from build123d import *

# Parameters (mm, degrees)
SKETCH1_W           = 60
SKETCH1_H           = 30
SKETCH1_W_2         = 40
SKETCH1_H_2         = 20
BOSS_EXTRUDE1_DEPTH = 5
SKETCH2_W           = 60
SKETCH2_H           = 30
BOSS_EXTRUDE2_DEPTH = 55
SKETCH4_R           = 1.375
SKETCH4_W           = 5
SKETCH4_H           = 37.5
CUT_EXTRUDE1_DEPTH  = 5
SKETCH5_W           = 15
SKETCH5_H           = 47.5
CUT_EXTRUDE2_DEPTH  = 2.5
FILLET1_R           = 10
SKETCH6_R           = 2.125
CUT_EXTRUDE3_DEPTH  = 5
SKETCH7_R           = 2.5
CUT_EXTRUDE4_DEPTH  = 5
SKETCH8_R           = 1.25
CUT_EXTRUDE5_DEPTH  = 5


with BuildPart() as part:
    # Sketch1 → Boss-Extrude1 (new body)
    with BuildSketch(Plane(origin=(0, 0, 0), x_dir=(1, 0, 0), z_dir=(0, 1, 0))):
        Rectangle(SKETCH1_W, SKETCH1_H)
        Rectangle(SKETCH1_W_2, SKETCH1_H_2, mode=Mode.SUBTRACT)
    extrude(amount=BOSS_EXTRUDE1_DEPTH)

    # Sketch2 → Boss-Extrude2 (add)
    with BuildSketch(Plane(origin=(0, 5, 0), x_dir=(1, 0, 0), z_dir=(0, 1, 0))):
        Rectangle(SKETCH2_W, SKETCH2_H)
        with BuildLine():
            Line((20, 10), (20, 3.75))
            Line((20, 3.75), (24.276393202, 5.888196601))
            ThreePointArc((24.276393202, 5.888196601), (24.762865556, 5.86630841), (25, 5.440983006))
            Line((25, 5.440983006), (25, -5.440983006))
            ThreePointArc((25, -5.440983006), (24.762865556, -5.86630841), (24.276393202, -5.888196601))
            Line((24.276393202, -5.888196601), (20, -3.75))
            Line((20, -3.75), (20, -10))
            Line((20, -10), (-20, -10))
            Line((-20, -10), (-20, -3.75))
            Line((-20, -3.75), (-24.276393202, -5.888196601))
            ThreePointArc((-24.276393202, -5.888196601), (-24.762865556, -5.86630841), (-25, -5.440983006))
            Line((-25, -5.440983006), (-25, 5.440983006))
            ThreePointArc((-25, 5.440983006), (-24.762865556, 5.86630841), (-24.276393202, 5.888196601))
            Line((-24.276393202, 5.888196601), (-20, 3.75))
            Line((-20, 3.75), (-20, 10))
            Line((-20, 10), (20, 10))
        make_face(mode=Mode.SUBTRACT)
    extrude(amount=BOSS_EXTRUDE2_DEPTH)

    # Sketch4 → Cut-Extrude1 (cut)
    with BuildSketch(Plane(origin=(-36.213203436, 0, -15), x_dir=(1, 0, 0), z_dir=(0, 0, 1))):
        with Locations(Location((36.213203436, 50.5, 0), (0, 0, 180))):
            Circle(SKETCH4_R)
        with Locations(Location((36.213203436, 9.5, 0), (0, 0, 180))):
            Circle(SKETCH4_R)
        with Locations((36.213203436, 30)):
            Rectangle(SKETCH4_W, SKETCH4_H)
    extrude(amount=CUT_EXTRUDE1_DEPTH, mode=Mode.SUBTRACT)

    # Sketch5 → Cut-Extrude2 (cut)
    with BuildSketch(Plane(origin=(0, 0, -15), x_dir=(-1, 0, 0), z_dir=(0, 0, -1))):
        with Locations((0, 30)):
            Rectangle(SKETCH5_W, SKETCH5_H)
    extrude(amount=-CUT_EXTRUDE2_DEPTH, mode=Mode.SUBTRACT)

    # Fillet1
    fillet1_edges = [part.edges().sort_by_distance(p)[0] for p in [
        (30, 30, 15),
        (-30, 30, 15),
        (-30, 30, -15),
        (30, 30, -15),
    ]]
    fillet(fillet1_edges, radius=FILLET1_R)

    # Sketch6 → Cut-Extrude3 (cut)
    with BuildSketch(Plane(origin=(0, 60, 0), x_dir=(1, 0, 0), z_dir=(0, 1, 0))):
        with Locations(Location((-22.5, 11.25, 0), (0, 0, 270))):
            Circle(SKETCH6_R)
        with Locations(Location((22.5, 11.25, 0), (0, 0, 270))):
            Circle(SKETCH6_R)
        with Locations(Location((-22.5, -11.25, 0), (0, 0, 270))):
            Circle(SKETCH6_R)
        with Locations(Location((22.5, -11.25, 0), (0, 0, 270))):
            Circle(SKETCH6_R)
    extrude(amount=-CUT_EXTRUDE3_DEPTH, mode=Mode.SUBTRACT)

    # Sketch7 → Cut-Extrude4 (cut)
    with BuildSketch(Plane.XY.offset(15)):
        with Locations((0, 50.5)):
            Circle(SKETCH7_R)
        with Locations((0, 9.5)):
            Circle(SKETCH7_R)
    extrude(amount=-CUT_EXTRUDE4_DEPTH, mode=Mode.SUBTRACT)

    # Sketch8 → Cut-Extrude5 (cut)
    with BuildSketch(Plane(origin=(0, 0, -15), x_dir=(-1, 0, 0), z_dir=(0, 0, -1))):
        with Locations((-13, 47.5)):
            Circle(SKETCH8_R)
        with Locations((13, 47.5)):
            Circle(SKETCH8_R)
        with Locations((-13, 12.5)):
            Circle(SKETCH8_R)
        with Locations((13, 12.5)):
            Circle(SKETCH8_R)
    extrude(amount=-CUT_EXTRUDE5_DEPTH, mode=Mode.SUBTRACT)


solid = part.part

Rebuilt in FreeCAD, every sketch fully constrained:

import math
import FreeCAD as App
import Part
import Sketcher

V = App.Vector


def edges_at(feature, points):
    """Names of the edges that pass closest to the given points."""
    edges = feature.Shape.Edges
    near = lambda p: min(range(len(edges)), key=lambda i: edges[i].distToShape(Part.Vertex(*p))[0])
    return sorted({f"Edge{near(p) + 1}" for p in points})

doc = App.newDocument("Part")
body = doc.addObject("PartDesign::Body", "Body")

# Sketch on XZ plane
sketch1 = doc.addObject("Sketcher::SketchObject", "Sketch")
body.addObject(sketch1)
sketch1.AttachmentSupport = (doc.XZ_Plane, [""])
sketch1.MapMode = "FlatFace"
sketch1.addGeometry(Part.LineSegment(V(-30, -15, 0), V(-30, 15, 0)), False)
sketch1.addGeometry(Part.LineSegment(V(-30, 15, 0), V(30, 15, 0)), False)
sketch1.addGeometry(Part.LineSegment(V(30, 15, 0), V(30, -15, 0)), False)
sketch1.addGeometry(Part.LineSegment(V(30, -15, 0), V(-30, -15, 0)), False)
sketch1.addGeometry(Part.LineSegment(V(20, 10, 0), V(-20, 10, 0)), False)
sketch1.addGeometry(Part.LineSegment(V(-20, 10, 0), V(-20, -10, 0)), False)
sketch1.addGeometry(Part.LineSegment(V(-20, -10, 0), V(20, -10, 0)), False)
sketch1.addGeometry(Part.LineSegment(V(20, -10, 0), V(20, 10, 0)), False)
sketch1.addConstraint(Sketcher.Constraint("Coincident", 0, 2, 1, 1))
sketch1.addConstraint(Sketcher.Constraint("Coincident", 1, 2, 2, 1))
sketch1.addConstraint(Sketcher.Constraint("Coincident", 2, 2, 3, 1))
sketch1.addConstraint(Sketcher.Constraint("Coincident", 3, 2, 0, 1))
sketch1.addConstraint(Sketcher.Constraint("Coincident", 4, 2, 5, 1))
sketch1.addConstraint(Sketcher.Constraint("Coincident", 5, 2, 6, 1))
sketch1.addConstraint(Sketcher.Constraint("Coincident", 6, 2, 7, 1))
sketch1.addConstraint(Sketcher.Constraint("Coincident", 7, 2, 4, 1))
sketch1.addConstraint(Sketcher.Constraint("Vertical", 0))
sketch1.addConstraint(Sketcher.Constraint("Horizontal", 1))
sketch1.addConstraint(Sketcher.Constraint("Vertical", 2))
sketch1.addConstraint(Sketcher.Constraint("Horizontal", 3))
sketch1.addConstraint(Sketcher.Constraint("Horizontal", 4))
sketch1.addConstraint(Sketcher.Constraint("Vertical", 5))
sketch1.addConstraint(Sketcher.Constraint("Horizontal", 6))
sketch1.addConstraint(Sketcher.Constraint("Vertical", 7))
sketch1.addConstraint(Sketcher.Constraint("Symmetric", 0, 2, 2, 2, -1, 1))
sketch1.addConstraint(Sketcher.Constraint("Symmetric", 4, 2, 6, 2, -1, 1))
sketch1.addConstraint(Sketcher.Constraint("DistanceX", 1, 1, 1, 2, 60.0))
sketch1.addConstraint(Sketcher.Constraint("DistanceX", 4, 2, 4, 1, 40.0))
sketch1.addConstraint(Sketcher.Constraint("DistanceY", 0, 1, 0, 2, 30.0))
sketch1.addConstraint(Sketcher.Constraint("DistanceY", 5, 2, 5, 1, 20.0))
pad1 = doc.addObject("PartDesign::Pad", "Pad")
body.addObject(pad1)
pad1.Profile = sketch1
pad1.Length = 5
pad1.Reversed = True

# Sketch on XZ plane
sketch2 = doc.addObject("Sketcher::SketchObject", "Sketch001")
body.addObject(sketch2)
sketch2.AttachmentSupport = (doc.XZ_Plane, [""])
sketch2.MapMode = "FlatFace"
sketch2.AttachmentOffset = App.Placement(V(0, 0, -5), App.Rotation())
sketch2.addGeometry(Part.LineSegment(V(-30, -15, 0), V(-30, 15, 0)), False)
sketch2.addGeometry(Part.LineSegment(V(-30, 15, 0), V(30, 15, 0)), False)
sketch2.addGeometry(Part.LineSegment(V(30, 15, 0), V(30, -15, 0)), False)
sketch2.addGeometry(Part.LineSegment(V(30, -15, 0), V(-30, -15, 0)), False)
sketch2.addGeometry(Part.LineSegment(V(-20, -10, 0), V(20, -10, 0)), False)
sketch2.addGeometry(Part.LineSegment(V(20, -10, 0), V(20, -3.75, 0)), False)
sketch2.addGeometry(Part.LineSegment(V(20, -3.75, 0), V(24.276393, -5.888197, 0)), False)
sketch2.addGeometry(Part.ArcOfCircle(Part.Circle(V(24.5, -5.440983, 0), V(0, 0, 1), 0.5), math.radians(-116.565051), math.radians(0)), False)
sketch2.addGeometry(Part.LineSegment(V(25, -5.440983, 0), V(25, 5.440983, 0)), False)
sketch2.addGeometry(Part.ArcOfCircle(Part.Circle(V(24.5, 5.440983, 0), V(0, 0, 1), 0.5), math.radians(0), math.radians(116.565051)), False)
sketch2.addGeometry(Part.LineSegment(V(24.276393, 5.888197, 0), V(20, 3.75, 0)), False)
sketch2.addGeometry(Part.LineSegment(V(20, 3.75, 0), V(20, 10, 0)), False)
sketch2.addGeometry(Part.LineSegment(V(20, 10, 0), V(-20, 10, 0)), False)
sketch2.addGeometry(Part.LineSegment(V(-20, 10, 0), V(-20, 3.75, 0)), False)
sketch2.addGeometry(Part.LineSegment(V(-20, 3.75, 0), V(-24.276393, 5.888197, 0)), False)
sketch2.addGeometry(Part.ArcOfCircle(Part.Circle(V(-24.5, 5.440983, 0), V(0, 0, 1), 0.5), math.radians(63.434949), math.radians(180)), False)
sketch2.addGeometry(Part.LineSegment(V(-25, 5.440983, 0), V(-25, -5.440983, 0)), False)
sketch2.addGeometry(Part.ArcOfCircle(Part.Circle(V(-24.5, -5.440983, 0), V(0, 0, 1), 0.5), math.radians(180), math.radians(296.565051)), False)
sketch2.addGeometry(Part.LineSegment(V(-24.276393, -5.888197, 0), V(-20, -3.75, 0)), False)
sketch2.addGeometry(Part.LineSegment(V(-20, -3.75, 0), V(-20, -10, 0)), False)
sketch2.addConstraint(Sketcher.Constraint("Coincident", 0, 2, 1, 1))
sketch2.addConstraint(Sketcher.Constraint("Coincident", 1, 2, 2, 1))
sketch2.addConstraint(Sketcher.Constraint("Coincident", 2, 2, 3, 1))
sketch2.addConstraint(Sketcher.Constraint("Coincident", 3, 2, 0, 1))
sketch2.addConstraint(Sketcher.Constraint("Coincident", 4, 2, 5, 1))
sketch2.addConstraint(Sketcher.Constraint("Coincident", 5, 2, 6, 1))
sketch2.addConstraint(Sketcher.Constraint("Tangent", 6, 2, 7, 1))
sketch2.addConstraint(Sketcher.Constraint("Tangent", 7, 2, 8, 1))
sketch2.addConstraint(Sketcher.Constraint("Tangent", 8, 2, 9, 1))
sketch2.addConstraint(Sketcher.Constraint("Tangent", 9, 2, 10, 1))
sketch2.addConstraint(Sketcher.Constraint("Coincident", 10, 2, 11, 1))
sketch2.addConstraint(Sketcher.Constraint("Coincident", 11, 2, 12, 1))
sketch2.addConstraint(Sketcher.Constraint("Coincident", 12, 2, 13, 1))
sketch2.addConstraint(Sketcher.Constraint("Coincident", 13, 2, 14, 1))
sketch2.addConstraint(Sketcher.Constraint("Tangent", 14, 2, 15, 1))
sketch2.addConstraint(Sketcher.Constraint("Tangent", 15, 2, 16, 1))
sketch2.addConstraint(Sketcher.Constraint("Tangent", 16, 2, 17, 1))
sketch2.addConstraint(Sketcher.Constraint("Tangent", 17, 2, 18, 1))
sketch2.addConstraint(Sketcher.Constraint("Coincident", 18, 2, 19, 1))
sketch2.addConstraint(Sketcher.Constraint("Coincident", 19, 2, 4, 1))
sketch2.addConstraint(Sketcher.Constraint("Vertical", 0))
sketch2.addConstraint(Sketcher.Constraint("Horizontal", 1))
sketch2.addConstraint(Sketcher.Constraint("Vertical", 2))
sketch2.addConstraint(Sketcher.Constraint("Horizontal", 3))
sketch2.addConstraint(Sketcher.Constraint("Horizontal", 4))
sketch2.addConstraint(Sketcher.Constraint("Vertical", 5))
sketch2.addConstraint(Sketcher.Constraint("Vertical", 8))
sketch2.addConstraint(Sketcher.Constraint("Vertical", 11))
sketch2.addConstraint(Sketcher.Constraint("Horizontal", 12))
sketch2.addConstraint(Sketcher.Constraint("Vertical", 13))
sketch2.addConstraint(Sketcher.Constraint("Vertical", 16))
sketch2.addConstraint(Sketcher.Constraint("Vertical", 19))
sketch2.addConstraint(Sketcher.Constraint("Equal", 7, 9))
sketch2.addConstraint(Sketcher.Constraint("Equal", 9, 15))
sketch2.addConstraint(Sketcher.Constraint("Equal", 15, 17))
sketch2.addConstraint(Sketcher.Constraint("Symmetric", 7, 3, 15, 3, -1, 1))
sketch2.addConstraint(Sketcher.Constraint("Symmetric", 0, 2, 2, 2, -1, 1))
sketch2.addConstraint(Sketcher.Constraint("Symmetric", 4, 2, 12, 2, -1, 1))
sketch2.addConstraint(Sketcher.Constraint("Symmetric", 9, 2, 17, 2, -1, 1))
sketch2.addConstraint(Sketcher.Constraint("Symmetric", 10, 2, 13, 2, -2))
sketch2.addConstraint(Sketcher.Constraint("Symmetric", 6, 2, 17, 2, -2))
sketch2.addConstraint(Sketcher.Constraint("Horizontal", 5, 2, 18, 2))
sketch2.addConstraint(Sketcher.Constraint("Radius", 7, 0.5))
sketch2.addConstraint(Sketcher.Constraint("DistanceX", 1, 1, 1, 2, 60.0))
sketch2.addConstraint(Sketcher.Constraint("DistanceX", 4, 1, 4, 2, 40.0))
sketch2.addConstraint(Sketcher.Constraint("DistanceY", 0, 1, 0, 2, 30.0))
sketch2.addConstraint(Sketcher.Constraint("DistanceY", 4, 2, -1, 1, 10.0))
sketch2.addConstraint(Sketcher.Constraint("DistanceX", -1, 1, 7, 2, 25.0))
sketch2.addConstraint(Sketcher.Constraint("DistanceY", 5, 1, 5, 2, 6.25))
sketch2.addConstraint(Sketcher.Constraint("DistanceY", 8, 1, 8, 2, 10.881966))
pad2 = doc.addObject("PartDesign::Pad", "Pad001")
body.addObject(pad2)
pad2.Profile = sketch2
pad2.Length = 55
pad2.Reversed = True

# Sketch on XY plane
sketch3 = doc.addObject("Sketcher::SketchObject", "Sketch002")
body.addObject(sketch3)
sketch3.AttachmentSupport = (doc.XY_Plane, [""])
sketch3.MapMode = "FlatFace"
sketch3.AttachmentOffset = App.Placement(V(0, 0, -15), App.Rotation())
sketch3.addGeometry(Part.Circle(V(0, 50.5, 0), V(0, 0, 1), 1.375), False)
sketch3.addGeometry(Part.Circle(V(0, 9.5, 0), V(0, 0, 1), 1.375), False)
sketch3.addGeometry(Part.LineSegment(V(-2.5, 48.75, 0), V(-2.5, 11.25, 0)), False)
sketch3.addGeometry(Part.LineSegment(V(-2.5, 11.25, 0), V(2.5, 11.25, 0)), False)
sketch3.addGeometry(Part.LineSegment(V(2.5, 11.25, 0), V(2.5, 48.75, 0)), False)
sketch3.addGeometry(Part.LineSegment(V(2.5, 48.75, 0), V(-2.5, 48.75, 0)), False)
sketch3.addConstraint(Sketcher.Constraint("Coincident", 2, 2, 3, 1))
sketch3.addConstraint(Sketcher.Constraint("Coincident", 3, 2, 4, 1))
sketch3.addConstraint(Sketcher.Constraint("Coincident", 4, 2, 5, 1))
sketch3.addConstraint(Sketcher.Constraint("Coincident", 5, 2, 2, 1))
sketch3.addConstraint(Sketcher.Constraint("Vertical", 2))
sketch3.addConstraint(Sketcher.Constraint("Horizontal", 3))
sketch3.addConstraint(Sketcher.Constraint("Vertical", 4))
sketch3.addConstraint(Sketcher.Constraint("Horizontal", 5))
sketch3.addConstraint(Sketcher.Constraint("Equal", 0, 1))
sketch3.addConstraint(Sketcher.Constraint("PointOnObject", 0, 3, -2))
sketch3.addConstraint(Sketcher.Constraint("PointOnObject", 1, 3, -2))
sketch3.addConstraint(Sketcher.Constraint("Diameter", 0, 2.75))
sketch3.addConstraint(Sketcher.Constraint("DistanceX", 3, 1, 3, 2, 5.0))
sketch3.addConstraint(Sketcher.Constraint("DistanceY", 2, 2, 2, 1, 37.5))
sketch3.addConstraint(Sketcher.Constraint("DistanceY", 1, 3, 0, 3, 41.0))
sketch3.addConstraint(Sketcher.Constraint("DistanceY", -1, 1, 0, 3, 50.5))
sketch3.addConstraint(Sketcher.Constraint("DistanceX", 2, 2, -1, 1, 2.5))
sketch3.addConstraint(Sketcher.Constraint("DistanceY", -1, 1, 2, 2, 11.25))
pocket1 = doc.addObject("PartDesign::Pocket", "Pocket")
body.addObject(pocket1)
pocket1.Profile = sketch3
pocket1.Length = 5
pocket1.Reversed = True

# Sketch on XY plane
sketch4 = doc.addObject("Sketcher::SketchObject", "Sketch003")
body.addObject(sketch4)
sketch4.AttachmentSupport = (doc.XY_Plane, [""])
sketch4.MapMode = "FlatFace"
sketch4.AttachmentOffset = App.Placement(V(0, 0, -15), App.Rotation())
sketch4.addGeometry(Part.LineSegment(V(7.5, 53.75, 0), V(7.5, 6.25, 0)), False)
sketch4.addGeometry(Part.LineSegment(V(7.5, 6.25, 0), V(-7.5, 6.25, 0)), False)
sketch4.addGeometry(Part.LineSegment(V(-7.5, 6.25, 0), V(-7.5, 53.75, 0)), False)
sketch4.addGeometry(Part.LineSegment(V(-7.5, 53.75, 0), V(7.5, 53.75, 0)), False)
sketch4.addConstraint(Sketcher.Constraint("Coincident", 0, 2, 1, 1))
sketch4.addConstraint(Sketcher.Constraint("Coincident", 1, 2, 2, 1))
sketch4.addConstraint(Sketcher.Constraint("Coincident", 2, 2, 3, 1))
sketch4.addConstraint(Sketcher.Constraint("Coincident", 3, 2, 0, 1))
sketch4.addConstraint(Sketcher.Constraint("Vertical", 0))
sketch4.addConstraint(Sketcher.Constraint("Horizontal", 1))
sketch4.addConstraint(Sketcher.Constraint("Vertical", 2))
sketch4.addConstraint(Sketcher.Constraint("Horizontal", 3))
sketch4.addConstraint(Sketcher.Constraint("DistanceX", 1, 2, 1, 1, 15.0))
sketch4.addConstraint(Sketcher.Constraint("DistanceY", 0, 2, 0, 1, 47.5))
sketch4.addConstraint(Sketcher.Constraint("DistanceX", -1, 1, 0, 2, 7.5))
sketch4.addConstraint(Sketcher.Constraint("DistanceY", -1, 1, 0, 2, 6.25))
pocket2 = doc.addObject("PartDesign::Pocket", "Pocket001")
body.addObject(pocket2)
pocket2.Profile = sketch4
pocket2.Length = 2.5
pocket2.Reversed = True
doc.recompute()

fillet = doc.addObject("PartDesign::Fillet", "Fillet")
body.addObject(fillet)
fillet.Base = (pocket2, edges_at(pocket2, [
    (30, 30, 15),
    (-30, 30, 15),
    (-30, 30, -15),
    (30, 30, -15),
]))
fillet.Radius = 10

# Sketch on XZ plane
sketch5 = doc.addObject("Sketcher::SketchObject", "Sketch004")
body.addObject(sketch5)
sketch5.AttachmentSupport = (doc.XZ_Plane, [""])
sketch5.MapMode = "FlatFace"
sketch5.AttachmentOffset = App.Placement(V(0, 0, -60), App.Rotation())
sketch5.addGeometry(Part.Circle(V(-22.5, -11.25, 0), V(0, 0, 1), 2.125), False)
sketch5.addGeometry(Part.Circle(V(22.5, -11.25, 0), V(0, 0, 1), 2.125), False)
sketch5.addGeometry(Part.Circle(V(-22.5, 11.25, 0), V(0, 0, 1), 2.125), False)
sketch5.addGeometry(Part.Circle(V(22.5, 11.25, 0), V(0, 0, 1), 2.125), False)
sketch5.addConstraint(Sketcher.Constraint("Equal", 0, 1))
sketch5.addConstraint(Sketcher.Constraint("Equal", 1, 2))
sketch5.addConstraint(Sketcher.Constraint("Equal", 2, 3))
sketch5.addConstraint(Sketcher.Constraint("Symmetric", 1, 3, 2, 3, -1, 1))
sketch5.addConstraint(Sketcher.Constraint("Symmetric", 0, 3, 3, 3, -1, 1))
sketch5.addConstraint(Sketcher.Constraint("Symmetric", 0, 3, 1, 3, -2))
sketch5.addConstraint(Sketcher.Constraint("Diameter", 0, 4.25))
sketch5.addConstraint(Sketcher.Constraint("DistanceX", 0, 3, 1, 3, 45.0))
sketch5.addConstraint(Sketcher.Constraint("DistanceY", 0, 3, 2, 3, 22.5))
pocket3 = doc.addObject("PartDesign::Pocket", "Pocket002")
body.addObject(pocket3)
pocket3.Profile = sketch5
pocket3.Length = 5
pocket3.Reversed = True

# Sketch on XY plane
sketch6 = doc.addObject("Sketcher::SketchObject", "Sketch005")
body.addObject(sketch6)
sketch6.AttachmentSupport = (doc.XY_Plane, [""])
sketch6.MapMode = "FlatFace"
sketch6.AttachmentOffset = App.Placement(V(0, 0, 15), App.Rotation())
sketch6.addGeometry(Part.Circle(V(0, 50.5, 0), V(0, 0, 1), 2.5), False)
sketch6.addGeometry(Part.Circle(V(0, 9.5, 0), V(0, 0, 1), 2.5), False)
sketch6.addConstraint(Sketcher.Constraint("Equal", 0, 1))
sketch6.addConstraint(Sketcher.Constraint("PointOnObject", 0, 3, -2))
sketch6.addConstraint(Sketcher.Constraint("PointOnObject", 1, 3, -2))
sketch6.addConstraint(Sketcher.Constraint("Diameter", 0, 5.0))
sketch6.addConstraint(Sketcher.Constraint("DistanceY", 1, 3, 0, 3, 41.0))
sketch6.addConstraint(Sketcher.Constraint("DistanceY", -1, 1, 0, 3, 50.5))
pocket4 = doc.addObject("PartDesign::Pocket", "Pocket003")
body.addObject(pocket4)
pocket4.Profile = sketch6
pocket4.Length = 5

# Sketch on XY plane
sketch7 = doc.addObject("Sketcher::SketchObject", "Sketch006")
body.addObject(sketch7)
sketch7.AttachmentSupport = (doc.XY_Plane, [""])
sketch7.MapMode = "FlatFace"
sketch7.AttachmentOffset = App.Placement(V(0, 0, -15), App.Rotation())
sketch7.addGeometry(Part.Circle(V(13, 47.5, 0), V(0, 0, 1), 1.25), False)
sketch7.addGeometry(Part.Circle(V(-13, 47.5, 0), V(0, 0, 1), 1.25), False)
sketch7.addGeometry(Part.Circle(V(13, 12.5, 0), V(0, 0, 1), 1.25), False)
sketch7.addGeometry(Part.Circle(V(-13, 12.5, 0), V(0, 0, 1), 1.25), False)
sketch7.addConstraint(Sketcher.Constraint("Equal", 0, 1))
sketch7.addConstraint(Sketcher.Constraint("Equal", 1, 2))
sketch7.addConstraint(Sketcher.Constraint("Equal", 2, 3))
sketch7.addConstraint(Sketcher.Constraint("Symmetric", 0, 3, 1, 3, -2))
sketch7.addConstraint(Sketcher.Constraint("Symmetric", 2, 3, 3, 3, -2))
sketch7.addConstraint(Sketcher.Constraint("Vertical", 0, 3, 2, 3))
sketch7.addConstraint(Sketcher.Constraint("Diameter", 0, 2.5))
sketch7.addConstraint(Sketcher.Constraint("DistanceX", -1, 1, 0, 3, 13.0))
sketch7.addConstraint(Sketcher.Constraint("DistanceY", 2, 3, 0, 3, 35.0))
sketch7.addConstraint(Sketcher.Constraint("DistanceY", -1, 1, 0, 3, 47.5))
pocket5 = doc.addObject("PartDesign::Pocket", "Pocket004")
body.addObject(pocket5)
pocket5.Profile = sketch7
pocket5.Length = 5
pocket5.Reversed = True

doc.recompute()
